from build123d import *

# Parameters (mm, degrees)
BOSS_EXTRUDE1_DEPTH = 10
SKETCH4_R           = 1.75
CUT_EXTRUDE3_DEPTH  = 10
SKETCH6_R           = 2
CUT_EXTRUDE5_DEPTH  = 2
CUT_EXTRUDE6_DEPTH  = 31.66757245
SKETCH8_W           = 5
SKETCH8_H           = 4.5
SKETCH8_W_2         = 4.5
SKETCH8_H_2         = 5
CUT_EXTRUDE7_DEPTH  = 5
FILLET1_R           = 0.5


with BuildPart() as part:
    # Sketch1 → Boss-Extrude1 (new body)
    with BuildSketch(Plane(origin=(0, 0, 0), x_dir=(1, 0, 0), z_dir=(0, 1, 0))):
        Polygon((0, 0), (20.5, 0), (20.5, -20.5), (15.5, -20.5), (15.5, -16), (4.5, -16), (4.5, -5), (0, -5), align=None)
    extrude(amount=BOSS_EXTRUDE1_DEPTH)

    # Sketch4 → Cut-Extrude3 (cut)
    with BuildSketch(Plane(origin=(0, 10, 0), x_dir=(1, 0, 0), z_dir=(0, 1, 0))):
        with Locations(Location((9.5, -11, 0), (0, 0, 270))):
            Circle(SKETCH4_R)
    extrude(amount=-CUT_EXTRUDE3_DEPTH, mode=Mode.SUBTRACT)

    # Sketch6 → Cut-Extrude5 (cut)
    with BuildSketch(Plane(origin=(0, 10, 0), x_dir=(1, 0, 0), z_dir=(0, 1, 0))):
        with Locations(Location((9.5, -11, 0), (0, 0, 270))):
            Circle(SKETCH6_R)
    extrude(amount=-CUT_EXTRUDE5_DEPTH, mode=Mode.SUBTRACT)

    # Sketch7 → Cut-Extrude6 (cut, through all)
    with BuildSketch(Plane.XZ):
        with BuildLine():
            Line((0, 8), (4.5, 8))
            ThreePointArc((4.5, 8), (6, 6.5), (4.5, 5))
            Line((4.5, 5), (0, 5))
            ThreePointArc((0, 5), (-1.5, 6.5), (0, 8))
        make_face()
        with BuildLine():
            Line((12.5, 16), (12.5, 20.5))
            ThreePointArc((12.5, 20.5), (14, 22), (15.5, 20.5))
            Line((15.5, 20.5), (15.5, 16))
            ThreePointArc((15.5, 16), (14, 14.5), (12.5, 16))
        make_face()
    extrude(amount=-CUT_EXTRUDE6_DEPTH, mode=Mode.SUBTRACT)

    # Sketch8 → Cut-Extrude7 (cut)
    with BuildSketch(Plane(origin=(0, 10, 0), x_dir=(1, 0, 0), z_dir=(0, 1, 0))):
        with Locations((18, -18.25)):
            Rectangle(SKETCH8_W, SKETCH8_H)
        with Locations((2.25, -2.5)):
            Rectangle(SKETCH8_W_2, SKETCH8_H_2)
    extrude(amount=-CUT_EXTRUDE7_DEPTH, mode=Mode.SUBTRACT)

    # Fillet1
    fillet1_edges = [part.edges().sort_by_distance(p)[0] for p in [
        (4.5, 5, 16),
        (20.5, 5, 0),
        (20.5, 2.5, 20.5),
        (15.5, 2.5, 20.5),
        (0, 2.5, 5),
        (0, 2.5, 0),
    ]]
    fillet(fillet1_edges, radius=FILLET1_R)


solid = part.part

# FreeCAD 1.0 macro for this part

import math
import FreeCAD as App
import Part
import Sketcher


def edges_at(feature, points):
    """Names of the edges that pass closest to the given points."""
    edges = feature.Shape.Edges
    near = lambda p: min(range(len(edges)), key=lambda i: edges[i].distToShape(Part.Vertex(*p))[0])
    return sorted({f"Edge{near(p) + 1}" for p in points})

doc = App.newDocument("Part")
body = doc.addObject("PartDesign::Body", "Body")

# Sketch on XZ plane
sketch1 = doc.addObject("Sketcher::SketchObject", "Sketch")
body.addObject(sketch1)
sketch1.AttachmentSupport = (doc.XZ_Plane, [""])
sketch1.MapMode = "FlatFace"
sketch1.addGeometry([
    Part.LineSegment(App.Vector(20.5, 0, 0), App.Vector(0, 0, 0)),  # 0
    Part.LineSegment(App.Vector(0, 0, 0), App.Vector(0, 5, 0)),  # 1
    Part.LineSegment(App.Vector(0, 5, 0), App.Vector(4.5, 5, 0)),  # 2
    Part.LineSegment(App.Vector(4.5, 5, 0), App.Vector(4.5, 16, 0)),  # 3
    Part.LineSegment(App.Vector(4.5, 16, 0), App.Vector(15.5, 16, 0)),  # 4
    Part.LineSegment(App.Vector(15.5, 16, 0), App.Vector(15.5, 20.5, 0)),  # 5
    Part.LineSegment(App.Vector(15.5, 20.5, 0), App.Vector(20.5, 20.5, 0)),  # 6
    Part.LineSegment(App.Vector(20.5, 20.5, 0), App.Vector(20.5, 0, 0)),  # 7
], False)
sketch1.addConstraint([
    Sketcher.Constraint("Coincident", 0, 2, 1, 1),
    Sketcher.Constraint("Coincident", 1, 2, 2, 1),
    Sketcher.Constraint("Coincident", 2, 2, 3, 1),
    Sketcher.Constraint("Coincident", 3, 2, 4, 1),
    Sketcher.Constraint("Coincident", 4, 2, 5, 1),
    Sketcher.Constraint("Coincident", 5, 2, 6, 1),
    Sketcher.Constraint("Coincident", 6, 2, 7, 1),
    Sketcher.Constraint("Coincident", 7, 2, 0, 1),
    Sketcher.Constraint("Horizontal", 0),
    Sketcher.Constraint("Vertical", 1),
    Sketcher.Constraint("Horizontal", 2),
    Sketcher.Constraint("Vertical", 3),
    Sketcher.Constraint("Horizontal", 4),
    Sketcher.Constraint("Vertical", 5),
    Sketcher.Constraint("Horizontal", 6),
    Sketcher.Constraint("Vertical", 7),
    Sketcher.Constraint("Coincident", 0, 2, -1, 1),
    Sketcher.Constraint("Equal", 6, 1),
    Sketcher.Constraint("Equal", 4, 3),
    Sketcher.Constraint("Equal", 2, 5),
    Sketcher.Constraint("DistanceX", 4, 1, 4, 2, 11.0),
    Sketcher.Constraint("DistanceX", 6, 1, 6, 2, 5.0),
    Sketcher.Constraint("DistanceX", 0, 2, 0, 1, 20.5),
])
pad1 = doc.addObject("PartDesign::Pad", "Pad")
body.addObject(pad1)
pad1.Profile = sketch1
pad1.Length = 10
pad1.Reversed = True

# Sketch on XZ plane
sketch2 = doc.addObject("Sketcher::SketchObject", "Sketch001")
body.addObject(sketch2)
sketch2.AttachmentSupport = (doc.XZ_Plane, [""])
sketch2.MapMode = "FlatFace"
sketch2.AttachmentOffset = App.Placement(App.Vector(0, 0, -10), App.Rotation())
sketch2.addGeometry(Part.Circle(App.Vector(9.5, 11, 0), App.Vector(0, 0, 1), 1.8), False)
sketch2.addConstraint([
    Sketcher.Constraint("Diameter", 0, 3.5),
    Sketcher.Constraint("DistanceY", -1, 1, 0, 3, 11.0),
    Sketcher.Constraint("DistanceX", -1, 1, 0, 3, 9.5),
])
pocket1 = doc.addObject("PartDesign::Pocket", "Pocket")
body.addObject(pocket1)
pocket1.Profile = sketch2
pocket1.Length = 10
pocket1.Reversed = True

# Sketch on XZ plane
sketch3 = doc.addObject("Sketcher::SketchObject", "Sketch002")
body.addObject(sketch3)
sketch3.AttachmentSupport = (doc.XZ_Plane, [""])
sketch3.MapMode = "FlatFace"
sketch3.AttachmentOffset = App.Placement(App.Vector(0, 0, -10), App.Rotation())
sketch3.addGeometry(Part.Circle(App.Vector(9.5, 11, 0), App.Vector(0, 0, 1), 2), False)
sketch3.addConstraint([
    Sketcher.Constraint("Diameter", 0, 4.0),
    Sketcher.Constraint("DistanceY", -1, 1, 0, 3, 11.0),
    Sketcher.Constraint("DistanceX", -1, 1, 0, 3, 9.5),
])
pocket2 = doc.addObject("PartDesign::Pocket", "Pocket001")
body.addObject(pocket2)
pocket2.Profile = sketch3
pocket2.Length = 2
pocket2.Reversed = True

# Sketch on XZ plane
sketch4 = doc.addObject("Sketcher::SketchObject", "Sketch003")
body.addObject(sketch4)
sketch4.AttachmentSupport = (doc.XZ_Plane, [""])
sketch4.MapMode = "FlatFace"
sketch4.addGeometry([
    Part.LineSegment(App.Vector(4.5, 8, 0), App.Vector(0, 8, 0)),  # 0
    Part.ArcOfCircle(Part.Circle(App.Vector(0, 6.5, 0), App.Vector(0, 0, 1), 1.5), math.radians(90), math.radians(270)),  # 1
    Part.LineSegment(App.Vector(0, 5, 0), App.Vector(4.5, 5, 0)),  # 2
    Part.ArcOfCircle(Part.Circle(App.Vector(4.5, 6.5, 0), App.Vector(0, 0, 1), 1.5), math.radians(-90), math.radians(90)),  # 3
    Part.LineSegment(App.Vector(12.5, 20.5, 0), App.Vector(12.5, 16, 0)),  # 4
    Part.ArcOfCircle(Part.Circle(App.Vector(14, 16, 0), App.Vector(0, 0, 1), 1.5), math.radians(180), math.radians(360)),  # 5
    Part.LineSegment(App.Vector(15.5, 16, 0), App.Vector(15.5, 20.5, 0)),  # 6
    Part.ArcOfCircle(Part.Circle(App.Vector(14, 20.5, 0), App.Vector(0, 0, 1), 1.5), math.radians(0), math.radians(180)),  # 7
], False)
sketch4.addConstraint([
    Sketcher.Constraint("Tangent", 0, 2, 1, 1),
    Sketcher.Constraint("Tangent", 1, 2, 2, 1),
    Sketcher.Constraint("Tangent", 2, 2, 3, 1),
    Sketcher.Constraint("Tangent", 3, 2, 0, 1),
    Sketcher.Constraint("Tangent", 4, 2, 5, 1),
    Sketcher.Constraint("Tangent", 5, 2, 6, 1),
    Sketcher.Constraint("Tangent", 6, 2, 7, 1),
    Sketcher.Constraint("Tangent", 7, 2, 4, 1),
    Sketcher.Constraint("Horizontal", 0),
    Sketcher.Constraint("Horizontal", 2),
    Sketcher.Constraint("Vertical", 4),
    Sketcher.Constraint("Vertical", 6),
    Sketcher.Constraint("Equal", 3, 5),
    Sketcher.Constraint("PointOnObject", 1, 3, -2),
    Sketcher.Constraint("Equal", 2, 4),
    Sketcher.Constraint("Radius", 1, 1.5),
    Sketcher.Constraint("DistanceX", 0, 2, 0, 1, 4.5),
    Sketcher.Constraint("DistanceX", -1, 1, 5, 3, 14.0),
    Sketcher.Constraint("DistanceY", -1, 1, 5, 3, 16.0),
    Sketcher.Constraint("DistanceY", -1, 1, 0, 2, 8.0),
])
pocket3 = doc.addObject("PartDesign::Pocket", "Pocket002")
body.addObject(pocket3)
pocket3.Profile = sketch4
pocket3.Type = "ThroughAll"

# Sketch on XZ plane
sketch5 = doc.addObject("Sketcher::SketchObject", "Sketch004")
body.addObject(sketch5)
sketch5.AttachmentSupport = (doc.XZ_Plane, [""])
sketch5.MapMode = "FlatFace"
sketch5.AttachmentOffset = App.Placement(App.Vector(0, 0, -10), App.Rotation())
sketch5.addGeometry([
    Part.LineSegment(App.Vector(15.5, 16, 0), App.Vector(15.5, 20.5, 0)),  # 0
    Part.LineSegment(App.Vector(15.5, 20.5, 0), App.Vector(20.5, 20.5, 0)),  # 1
    Part.LineSegment(App.Vector(20.5, 20.5, 0), App.Vector(20.5, 16, 0)),  # 2
    Part.LineSegment(App.Vector(20.5, 16, 0), App.Vector(15.5, 16, 0)),  # 3
    Part.LineSegment(App.Vector(0, 0, 0), App.Vector(0, 5, 0)),  # 4
    Part.LineSegment(App.Vector(0, 5, 0), App.Vector(4.5, 5, 0)),  # 5
    Part.LineSegment(App.Vector(4.5, 5, 0), App.Vector(4.5, 0, 0)),  # 6
    Part.LineSegment(App.Vector(4.5, 0, 0), App.Vector(0, 0, 0)),  # 7
], False)
sketch5.addConstraint([
    Sketcher.Constraint("Coincident", 0, 2, 1, 1),
    Sketcher.Constraint("Coincident", 1, 2, 2, 1),
    Sketcher.Constraint("Coincident", 2, 2, 3, 1),
    Sketcher.Constraint("Coincident", 3, 2, 0, 1),
    Sketcher.Constraint("Coincident", 4, 2, 5, 1),
    Sketcher.Constraint("Coincident", 5, 2, 6, 1),
    Sketcher.Constraint("Coincident", 6, 2, 7, 1),
    Sketcher.Constraint("Coincident", 7, 2, 4, 1),
    Sketcher.Constraint("Vertical", 0),
    Sketcher.Constraint("Horizontal", 1),
    Sketcher.Constraint("Vertical", 2),
    Sketcher.Constraint("Horizontal", 3),
    Sketcher.Constraint("Vertical", 4),
    Sketcher.Constraint("Horizontal", 5),
    Sketcher.Constraint("Vertical", 6),
    Sketcher.Constraint("Horizontal", 7),
    Sketcher.Constraint("Coincident", 7, 2, -1, 1),
    Sketcher.Constraint("Equal", 7, 0),
    Sketcher.Constraint("Equal", 3, 4),
    Sketcher.Constraint("DistanceX", 1, 1, 1, 2, 5.0),
    Sketcher.Constraint("DistanceX", 5, 1, 5, 2, 4.5),
    Sketcher.Constraint("DistanceY", -1, 1, 2, 2, 16.0),
    Sketcher.Constraint("DistanceX", 5, 2, 3, 2, 11.0),
])
pocket4 = doc.addObject("PartDesign::Pocket", "Pocket003")
body.addObject(pocket4)
pocket4.Profile = sketch5
pocket4.Length = 5
pocket4.Reversed = True
doc.recompute()

fillet = doc.addObject("PartDesign::Fillet", "Fillet")
body.addObject(fillet)
fillet.Base = (pocket4, edges_at(pocket4, [
    (4.5, 5, 16),
    (20.5, 5, 0),
    (20.5, 2.5, 20.5),
    (15.5, 2.5, 20.5),
    (0, 2.5, 5),
    (0, 2.5, 0),
]))
fillet.Radius = 0.5

doc.recompute()
